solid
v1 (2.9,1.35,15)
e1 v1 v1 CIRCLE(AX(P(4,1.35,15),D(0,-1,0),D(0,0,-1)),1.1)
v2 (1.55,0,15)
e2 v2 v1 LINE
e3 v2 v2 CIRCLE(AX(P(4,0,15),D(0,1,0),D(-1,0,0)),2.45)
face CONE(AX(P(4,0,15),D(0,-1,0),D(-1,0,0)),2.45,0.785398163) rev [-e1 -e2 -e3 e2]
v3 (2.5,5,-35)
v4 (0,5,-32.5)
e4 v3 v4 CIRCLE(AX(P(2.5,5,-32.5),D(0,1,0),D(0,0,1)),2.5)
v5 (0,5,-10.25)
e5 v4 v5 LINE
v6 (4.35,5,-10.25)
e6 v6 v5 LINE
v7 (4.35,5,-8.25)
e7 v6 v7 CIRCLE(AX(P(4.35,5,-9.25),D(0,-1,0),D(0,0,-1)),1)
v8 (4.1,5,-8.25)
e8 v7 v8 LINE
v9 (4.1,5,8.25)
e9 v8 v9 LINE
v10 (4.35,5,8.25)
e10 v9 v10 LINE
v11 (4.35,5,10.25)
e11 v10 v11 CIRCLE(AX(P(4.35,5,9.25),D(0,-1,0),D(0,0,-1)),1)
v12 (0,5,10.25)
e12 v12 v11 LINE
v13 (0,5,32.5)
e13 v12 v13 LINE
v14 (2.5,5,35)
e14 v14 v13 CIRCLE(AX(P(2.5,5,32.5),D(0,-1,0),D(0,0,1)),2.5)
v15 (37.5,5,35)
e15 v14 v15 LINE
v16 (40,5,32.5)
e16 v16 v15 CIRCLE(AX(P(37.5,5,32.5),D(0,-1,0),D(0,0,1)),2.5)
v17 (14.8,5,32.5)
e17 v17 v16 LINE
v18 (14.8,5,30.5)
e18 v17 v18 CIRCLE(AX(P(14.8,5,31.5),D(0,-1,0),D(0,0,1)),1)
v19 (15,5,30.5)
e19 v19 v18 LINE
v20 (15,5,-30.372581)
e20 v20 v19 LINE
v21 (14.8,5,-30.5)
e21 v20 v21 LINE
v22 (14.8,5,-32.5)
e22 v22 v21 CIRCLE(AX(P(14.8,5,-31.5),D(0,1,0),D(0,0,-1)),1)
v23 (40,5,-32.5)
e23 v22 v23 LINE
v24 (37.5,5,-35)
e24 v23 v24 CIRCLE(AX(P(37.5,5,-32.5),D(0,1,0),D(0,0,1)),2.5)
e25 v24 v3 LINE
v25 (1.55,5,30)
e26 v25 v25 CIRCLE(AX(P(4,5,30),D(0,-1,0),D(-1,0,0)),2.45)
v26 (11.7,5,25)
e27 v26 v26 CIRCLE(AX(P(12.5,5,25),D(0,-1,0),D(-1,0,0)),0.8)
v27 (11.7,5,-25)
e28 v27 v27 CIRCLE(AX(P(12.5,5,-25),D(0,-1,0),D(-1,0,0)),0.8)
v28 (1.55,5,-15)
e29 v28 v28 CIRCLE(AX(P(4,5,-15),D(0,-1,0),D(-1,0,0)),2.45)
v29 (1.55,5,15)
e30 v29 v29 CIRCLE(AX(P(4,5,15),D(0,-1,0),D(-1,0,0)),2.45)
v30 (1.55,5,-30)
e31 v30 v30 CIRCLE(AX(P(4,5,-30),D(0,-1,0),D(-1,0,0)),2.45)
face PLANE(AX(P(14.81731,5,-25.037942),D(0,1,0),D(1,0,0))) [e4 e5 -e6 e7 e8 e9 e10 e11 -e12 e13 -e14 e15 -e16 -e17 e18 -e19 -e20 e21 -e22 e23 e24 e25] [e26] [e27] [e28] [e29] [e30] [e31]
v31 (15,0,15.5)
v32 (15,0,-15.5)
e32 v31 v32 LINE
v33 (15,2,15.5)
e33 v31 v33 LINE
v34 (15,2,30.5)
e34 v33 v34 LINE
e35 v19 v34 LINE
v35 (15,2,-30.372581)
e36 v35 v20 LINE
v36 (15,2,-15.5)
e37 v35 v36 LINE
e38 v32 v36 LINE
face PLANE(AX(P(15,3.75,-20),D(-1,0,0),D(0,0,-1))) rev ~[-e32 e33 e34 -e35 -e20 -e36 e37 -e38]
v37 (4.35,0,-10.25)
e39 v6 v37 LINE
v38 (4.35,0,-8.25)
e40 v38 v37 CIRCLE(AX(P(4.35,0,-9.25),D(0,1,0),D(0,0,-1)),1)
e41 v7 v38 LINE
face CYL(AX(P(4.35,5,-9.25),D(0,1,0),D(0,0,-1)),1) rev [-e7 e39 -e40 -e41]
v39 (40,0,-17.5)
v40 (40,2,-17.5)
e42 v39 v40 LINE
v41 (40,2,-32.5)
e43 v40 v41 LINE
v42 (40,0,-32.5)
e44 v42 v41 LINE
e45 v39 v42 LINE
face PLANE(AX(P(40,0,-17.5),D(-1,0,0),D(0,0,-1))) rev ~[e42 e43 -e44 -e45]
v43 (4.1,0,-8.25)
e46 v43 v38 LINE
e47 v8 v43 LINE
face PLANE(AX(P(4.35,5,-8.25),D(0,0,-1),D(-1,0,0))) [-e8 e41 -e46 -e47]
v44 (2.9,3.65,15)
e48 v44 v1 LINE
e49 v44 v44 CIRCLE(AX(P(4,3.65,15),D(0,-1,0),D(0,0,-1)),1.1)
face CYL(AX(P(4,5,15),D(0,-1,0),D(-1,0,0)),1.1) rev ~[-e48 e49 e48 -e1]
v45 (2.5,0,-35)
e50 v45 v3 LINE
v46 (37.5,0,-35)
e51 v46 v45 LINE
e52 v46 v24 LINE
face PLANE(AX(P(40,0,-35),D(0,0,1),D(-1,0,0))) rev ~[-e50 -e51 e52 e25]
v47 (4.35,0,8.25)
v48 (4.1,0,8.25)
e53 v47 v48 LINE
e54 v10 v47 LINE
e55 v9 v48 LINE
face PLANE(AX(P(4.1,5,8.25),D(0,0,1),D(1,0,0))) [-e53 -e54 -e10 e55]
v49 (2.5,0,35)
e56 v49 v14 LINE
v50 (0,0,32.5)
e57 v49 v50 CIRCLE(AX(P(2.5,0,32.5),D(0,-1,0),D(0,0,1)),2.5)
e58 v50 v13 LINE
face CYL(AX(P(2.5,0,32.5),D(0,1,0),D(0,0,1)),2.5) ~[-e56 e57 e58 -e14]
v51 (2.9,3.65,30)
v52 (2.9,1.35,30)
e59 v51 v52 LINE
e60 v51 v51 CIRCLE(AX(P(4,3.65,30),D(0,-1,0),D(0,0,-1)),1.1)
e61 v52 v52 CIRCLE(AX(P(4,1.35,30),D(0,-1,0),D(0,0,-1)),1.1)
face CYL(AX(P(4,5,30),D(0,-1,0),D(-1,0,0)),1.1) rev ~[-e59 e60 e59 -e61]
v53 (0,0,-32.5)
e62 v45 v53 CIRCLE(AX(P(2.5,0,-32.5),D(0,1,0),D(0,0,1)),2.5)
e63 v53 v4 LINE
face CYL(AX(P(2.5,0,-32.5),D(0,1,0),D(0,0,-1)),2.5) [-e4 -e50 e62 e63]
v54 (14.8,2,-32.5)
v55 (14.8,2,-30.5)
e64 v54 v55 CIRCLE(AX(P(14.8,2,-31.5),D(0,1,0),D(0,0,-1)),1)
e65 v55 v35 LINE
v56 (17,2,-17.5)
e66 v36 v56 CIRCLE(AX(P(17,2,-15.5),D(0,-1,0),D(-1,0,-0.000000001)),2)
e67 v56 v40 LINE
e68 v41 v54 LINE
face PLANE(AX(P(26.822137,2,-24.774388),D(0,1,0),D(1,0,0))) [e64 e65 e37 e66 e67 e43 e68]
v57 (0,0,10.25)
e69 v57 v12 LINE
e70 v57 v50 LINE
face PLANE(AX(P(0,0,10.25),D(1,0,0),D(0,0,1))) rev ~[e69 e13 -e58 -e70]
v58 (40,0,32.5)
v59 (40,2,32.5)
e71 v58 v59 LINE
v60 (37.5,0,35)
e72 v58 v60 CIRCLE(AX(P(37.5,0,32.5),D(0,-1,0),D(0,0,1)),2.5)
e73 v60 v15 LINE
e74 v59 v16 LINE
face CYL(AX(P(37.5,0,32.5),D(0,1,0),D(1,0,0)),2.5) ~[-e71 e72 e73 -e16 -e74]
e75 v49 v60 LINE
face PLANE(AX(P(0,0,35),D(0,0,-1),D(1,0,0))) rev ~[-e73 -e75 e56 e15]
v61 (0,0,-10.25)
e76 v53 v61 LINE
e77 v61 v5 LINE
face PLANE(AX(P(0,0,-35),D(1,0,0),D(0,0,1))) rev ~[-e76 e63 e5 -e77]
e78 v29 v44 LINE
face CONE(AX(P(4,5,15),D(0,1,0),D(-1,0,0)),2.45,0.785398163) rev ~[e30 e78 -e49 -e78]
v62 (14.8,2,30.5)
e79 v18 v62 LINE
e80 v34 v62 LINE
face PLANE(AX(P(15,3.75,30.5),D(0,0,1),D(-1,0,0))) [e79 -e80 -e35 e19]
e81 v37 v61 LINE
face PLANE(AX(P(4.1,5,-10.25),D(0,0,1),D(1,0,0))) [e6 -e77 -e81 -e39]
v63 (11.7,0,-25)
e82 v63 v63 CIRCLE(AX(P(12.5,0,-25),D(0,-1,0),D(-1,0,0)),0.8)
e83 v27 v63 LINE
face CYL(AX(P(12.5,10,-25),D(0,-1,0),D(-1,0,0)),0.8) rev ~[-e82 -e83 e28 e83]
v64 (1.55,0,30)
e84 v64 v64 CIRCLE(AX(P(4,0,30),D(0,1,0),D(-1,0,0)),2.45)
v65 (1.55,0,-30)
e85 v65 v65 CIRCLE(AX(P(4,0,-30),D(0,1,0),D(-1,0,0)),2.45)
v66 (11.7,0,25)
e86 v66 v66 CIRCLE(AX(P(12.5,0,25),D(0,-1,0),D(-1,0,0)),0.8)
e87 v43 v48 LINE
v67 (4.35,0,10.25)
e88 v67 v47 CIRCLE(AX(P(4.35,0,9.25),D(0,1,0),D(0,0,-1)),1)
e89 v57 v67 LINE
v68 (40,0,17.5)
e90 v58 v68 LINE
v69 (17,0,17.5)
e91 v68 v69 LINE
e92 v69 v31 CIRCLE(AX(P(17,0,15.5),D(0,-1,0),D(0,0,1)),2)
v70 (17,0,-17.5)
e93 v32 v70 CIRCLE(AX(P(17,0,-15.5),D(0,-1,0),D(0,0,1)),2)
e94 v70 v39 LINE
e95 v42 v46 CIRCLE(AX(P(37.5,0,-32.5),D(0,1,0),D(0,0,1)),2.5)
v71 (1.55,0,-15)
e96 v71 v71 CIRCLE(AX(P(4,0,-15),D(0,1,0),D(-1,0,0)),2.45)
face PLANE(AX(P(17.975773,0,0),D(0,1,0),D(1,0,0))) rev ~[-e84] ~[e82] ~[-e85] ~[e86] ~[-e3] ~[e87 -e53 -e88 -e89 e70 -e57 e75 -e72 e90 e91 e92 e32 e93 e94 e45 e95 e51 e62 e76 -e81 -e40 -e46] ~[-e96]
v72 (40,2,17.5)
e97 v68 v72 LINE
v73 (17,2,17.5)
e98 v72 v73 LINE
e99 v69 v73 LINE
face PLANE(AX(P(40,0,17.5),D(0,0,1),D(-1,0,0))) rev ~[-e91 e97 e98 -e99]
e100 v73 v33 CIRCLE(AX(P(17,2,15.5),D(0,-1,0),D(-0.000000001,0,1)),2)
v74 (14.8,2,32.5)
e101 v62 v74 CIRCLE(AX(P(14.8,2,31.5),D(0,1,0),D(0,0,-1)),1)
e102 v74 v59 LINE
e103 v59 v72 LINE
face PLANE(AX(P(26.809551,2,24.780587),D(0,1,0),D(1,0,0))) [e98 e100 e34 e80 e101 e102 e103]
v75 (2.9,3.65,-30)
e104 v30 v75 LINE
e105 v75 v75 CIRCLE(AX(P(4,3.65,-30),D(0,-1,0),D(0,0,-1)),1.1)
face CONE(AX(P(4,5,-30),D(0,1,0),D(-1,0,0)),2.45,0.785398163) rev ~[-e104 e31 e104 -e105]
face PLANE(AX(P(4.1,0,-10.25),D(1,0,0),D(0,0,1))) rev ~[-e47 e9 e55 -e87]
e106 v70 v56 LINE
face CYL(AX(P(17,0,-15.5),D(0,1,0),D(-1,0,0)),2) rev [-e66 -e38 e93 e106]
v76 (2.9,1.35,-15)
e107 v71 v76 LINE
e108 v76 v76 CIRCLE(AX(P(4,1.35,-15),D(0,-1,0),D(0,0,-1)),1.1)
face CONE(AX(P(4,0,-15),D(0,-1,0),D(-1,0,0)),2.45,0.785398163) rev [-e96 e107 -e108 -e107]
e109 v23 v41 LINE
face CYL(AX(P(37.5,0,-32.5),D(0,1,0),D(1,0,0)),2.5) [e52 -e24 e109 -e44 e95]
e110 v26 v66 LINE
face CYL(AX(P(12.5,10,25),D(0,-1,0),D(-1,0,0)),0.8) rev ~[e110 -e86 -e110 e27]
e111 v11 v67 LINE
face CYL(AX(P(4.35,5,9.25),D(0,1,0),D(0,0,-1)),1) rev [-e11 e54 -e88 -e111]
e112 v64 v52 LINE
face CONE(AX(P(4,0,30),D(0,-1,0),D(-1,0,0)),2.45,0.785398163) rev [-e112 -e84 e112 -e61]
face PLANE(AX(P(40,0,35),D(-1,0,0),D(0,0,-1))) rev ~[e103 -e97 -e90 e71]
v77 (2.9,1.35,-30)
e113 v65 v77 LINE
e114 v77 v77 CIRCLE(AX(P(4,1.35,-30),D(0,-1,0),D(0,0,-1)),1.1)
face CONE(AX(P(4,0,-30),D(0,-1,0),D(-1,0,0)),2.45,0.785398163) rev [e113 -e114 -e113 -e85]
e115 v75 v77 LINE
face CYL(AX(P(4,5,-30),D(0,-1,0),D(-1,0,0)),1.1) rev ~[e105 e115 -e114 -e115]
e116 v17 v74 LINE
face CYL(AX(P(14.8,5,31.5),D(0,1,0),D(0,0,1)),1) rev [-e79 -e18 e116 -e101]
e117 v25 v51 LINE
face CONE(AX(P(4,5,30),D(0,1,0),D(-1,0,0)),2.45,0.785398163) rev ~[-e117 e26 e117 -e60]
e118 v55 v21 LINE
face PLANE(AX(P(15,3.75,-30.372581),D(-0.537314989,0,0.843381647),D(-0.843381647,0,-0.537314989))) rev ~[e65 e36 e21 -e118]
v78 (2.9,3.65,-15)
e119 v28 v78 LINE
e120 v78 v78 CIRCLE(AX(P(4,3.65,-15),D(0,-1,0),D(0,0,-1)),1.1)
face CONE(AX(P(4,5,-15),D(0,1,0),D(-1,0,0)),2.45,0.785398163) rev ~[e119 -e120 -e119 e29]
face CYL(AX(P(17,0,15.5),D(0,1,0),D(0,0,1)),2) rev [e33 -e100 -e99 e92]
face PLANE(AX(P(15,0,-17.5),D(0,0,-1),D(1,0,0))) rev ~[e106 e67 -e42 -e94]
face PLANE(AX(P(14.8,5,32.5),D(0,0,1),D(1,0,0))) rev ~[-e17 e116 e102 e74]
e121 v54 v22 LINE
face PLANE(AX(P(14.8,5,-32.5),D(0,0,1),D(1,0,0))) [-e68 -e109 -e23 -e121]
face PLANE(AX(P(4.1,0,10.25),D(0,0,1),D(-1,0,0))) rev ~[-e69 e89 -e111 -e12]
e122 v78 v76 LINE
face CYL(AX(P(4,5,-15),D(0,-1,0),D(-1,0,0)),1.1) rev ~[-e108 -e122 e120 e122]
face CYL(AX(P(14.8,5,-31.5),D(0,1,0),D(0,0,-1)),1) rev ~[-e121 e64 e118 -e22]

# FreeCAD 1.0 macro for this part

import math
import FreeCAD as App
import Part
import Sketcher
Q = App.Units.Quantity


def edges_at(feature, points):
    """Names of the edges that pass closest to the given points."""
    edges = feature.Shape.Edges
    near = lambda p: min(range(len(edges)), key=lambda i: edges[i].distToShape(Part.Vertex(*p))[0])
    return sorted({f"Edge{near(p) + 1}" for p in points})

doc = App.newDocument("Part")
body = doc.addObject("PartDesign::Body", "Body")

sketch1 = doc.addObject("Sketcher::SketchObject", "Sketch")
body.addObject(sketch1)
sketch1.AttachmentSupport = (doc.XZ_Plane, [""])
sketch1.MapMode = "FlatFace"
sketch1.addGeometry([
    Part.LineSegment(App.Vector(0, -35, 0), App.Vector(0, -10.2, 0)),
    Part.LineSegment(App.Vector(0, -10.2, 0), App.Vector(4.1, -10.2, 0)),
    Part.LineSegment(App.Vector(4.1, -10.2, 0), App.Vector(4.1, 10.2, 0)),
    Part.LineSegment(App.Vector(4.1, 10.2, 0), App.Vector(0, 10.2, 0)),
    Part.LineSegment(App.Vector(0, 10.2, 0), App.Vector(0, 35, 0)),
    Part.LineSegment(App.Vector(0, 35, 0), App.Vector(40, 35, 0)),
    Part.LineSegment(App.Vector(40, 35, 0), App.Vector(40, 17.5, 0)),
    Part.LineSegment(App.Vector(40, 17.5, 0), App.Vector(15, 17.5, 0)),
    Part.LineSegment(App.Vector(15, 17.5, 0), App.Vector(15, -17.5, 0)),
    Part.LineSegment(App.Vector(15, -17.5, 0), App.Vector(40, -17.5, 0)),
    Part.LineSegment(App.Vector(40, -17.5, 0), App.Vector(40, -35, 0)),
    Part.LineSegment(App.Vector(40, -35, 0), App.Vector(0, -35, 0)),
], False)
sketch1.addConstraint([
    Sketcher.Constraint("Coincident", 0, 2, 1, 1),
    Sketcher.Constraint("Coincident", 1, 2, 2, 1),
    Sketcher.Constraint("Coincident", 2, 2, 3, 1),
    Sketcher.Constraint("Coincident", 3, 2, 4, 1),
    Sketcher.Constraint("Coincident", 4, 2, 5, 1),
    Sketcher.Constraint("Coincident", 5, 2, 6, 1),
    Sketcher.Constraint("Coincident", 6, 2, 7, 1),
    Sketcher.Constraint("Coincident", 7, 2, 8, 1),
    Sketcher.Constraint("Coincident", 8, 2, 9, 1),
    Sketcher.Constraint("Coincident", 9, 2, 10, 1),
    Sketcher.Constraint("Coincident", 10, 2, 11, 1),
    Sketcher.Constraint("Coincident", 11, 2, 0, 1),
    Sketcher.Constraint("Vertical", 0),
    Sketcher.Constraint("Horizontal", 1),
    Sketcher.Constraint("Vertical", 2),
    Sketcher.Constraint("Horizontal", 3),
    Sketcher.Constraint("Vertical", 4),
    Sketcher.Constraint("Horizontal", 5),
    Sketcher.Constraint("Vertical", 6),
    Sketcher.Constraint("Horizontal", 7),
    Sketcher.Constraint("Vertical", 8),
    Sketcher.Constraint("Horizontal", 9),
    Sketcher.Constraint("Vertical", 10),
    Sketcher.Constraint("Horizontal", 11),
    Sketcher.Constraint("Symmetric", 0, 2, 3, 2, -1, 1),
    Sketcher.Constraint("Symmetric", 6, 2, 9, 2, -1),
    Sketcher.Constraint("Symmetric", 4, 2, 11, 2, -1),
    Sketcher.Constraint("DistanceX", 5, 1, 5, 2, Q("40 mm")),
    Sketcher.Constraint("DistanceX", 7, 2, 7, 1, Q("25 mm")),
    Sketcher.Constraint("DistanceY", 8, 2, 8, 1, Q("35 mm")),
    Sketcher.Constraint("DistanceX", 1, 1, 1, 2, Q("4.1 mm")),
    Sketcher.Constraint("DistanceY", 2, 1, 2, 2, Q("20.5 mm")),
    Sketcher.Constraint("DistanceY", 6, 2, 6, 1, Q("17.5 mm")),
])
pad1 = doc.addObject("PartDesign::Pad", "Pad")
body.addObject(pad1)
pad1.Profile = sketch1
pad1.Length = 5
pad1.Reversed = True
doc.recompute()

fillet = doc.addObject("PartDesign::Fillet", "Fillet")
body.addObject(fillet)
fillet.Base = (pad1, edges_at(pad1, [(15, 2.5, -17.5), (15, 2.5, 17.5)]))
fillet.Radius = 2
doc.recompute()

fillet2 = doc.addObject("PartDesign::Fillet", "Fillet001")
body.addObject(fillet2)
fillet2.Base = (fillet, edges_at(fillet, [
    (0, 2.5, -35),
    (40, 2.5, -35),
    (40, 2.5, 35),
    (0, 2.5, 35),
]))
fillet2.Radius = 2.5

sketch2 = doc.addObject("Sketcher::SketchObject", "Sketch001")
body.addObject(sketch2)
sketch2.AttachmentSupport = (doc.XZ_Plane, [""])
sketch2.MapMode = "FlatFace"
sketch2.AttachmentOffset = App.Placement(App.Vector(0, 0, -5), App.Rotation())
sketch2.addGeometry([
    Part.LineSegment(App.Vector(4.35, -10.25, 0), App.Vector(4.1, -10.25, 0)),
    Part.LineSegment(App.Vector(4.1, -10.25, 0), App.Vector(4.1, -8.25, 0)),
    Part.LineSegment(App.Vector(4.1, -8.25, 0), App.Vector(4.35, -8.25, 0)),
    Part.ArcOfCircle(Part.Circle(App.Vector(4.35, -9.25, 0), App.Vector(0, 0, 1), 1), math.radians(-90), math.radians(90)),
], False)
sketch2.addConstraint([
    Sketcher.Constraint("Coincident", 0, 2, 1, 1),
    Sketcher.Constraint("Coincident", 1, 2, 2, 1),
    Sketcher.Constraint("Tangent", 2, 2, 3, 2),
    Sketcher.Constraint("Tangent", 3, 1, 0, 1),
    Sketcher.Constraint("Horizontal", 0),
    Sketcher.Constraint("Vertical", 1),
    Sketcher.Constraint("Horizontal", 2),
    Sketcher.Constraint("Radius", 3, Q("1 mm")),
    Sketcher.Constraint("DistanceX", 0, 2, 0, 1, Q("0.25 mm")),
    Sketcher.Constraint("DistanceX", -1, 1, 0, 2, Q("4.1 mm")),
    Sketcher.Constraint("DistanceY", 3, 3, -1, 1, Q("9.25 mm")),
])
pocket1 = doc.addObject("PartDesign::Pocket", "Pocket")
body.addObject(pocket1)
pocket1.Profile = sketch2
pocket1.Type = "UpToFirst"
pocket1.Reversed = True

sketch3 = doc.addObject("Sketcher::SketchObject", "Sketch002")
body.addObject(sketch3)
sketch3.AttachmentSupport = (doc.XZ_Plane, [""])
sketch3.MapMode = "FlatFace"
sketch3.AttachmentOffset = App.Placement(App.Vector(0, 0, -5), App.Rotation())
sketch3.addGeometry([
    Part.LineSegment(App.Vector(4.1, 8.25, 0), App.Vector(4.1, 10.25, 0)),
    Part.LineSegment(App.Vector(4.1, 10.25, 0), App.Vector(4.35, 10.25, 0)),
    Part.ArcOfCircle(Part.Circle(App.Vector(4.35, 9.25, 0), App.Vector(0, 0, 1), 1), math.radians(-90), math.radians(90)),
    Part.LineSegment(App.Vector(4.35, 8.25, 0), App.Vector(4.1, 8.25, 0)),
], False)
sketch3.addConstraint([
    Sketcher.Constraint("Coincident", 0, 2, 1, 1),
    Sketcher.Constraint("Tangent", 1, 2, 2, 2),
    Sketcher.Constraint("Tangent", 2, 1, 3, 1),
    Sketcher.Constraint("Coincident", 3, 2, 0, 1),
    Sketcher.Constraint("Vertical", 0),
    Sketcher.Constraint("Horizontal", 1),
    Sketcher.Constraint("Horizontal", 3),
    Sketcher.Constraint("Radius", 2, Q("1 mm")),
    Sketcher.Constraint("DistanceX", 1, 1, 1, 2, Q("0.25 mm")),
    Sketcher.Constraint("DistanceX", -1, 1, 0, 2, Q("4.1 mm")),
    Sketcher.Constraint("DistanceY", -1, 1, 2, 3, Q("9.25 mm")),
])
pocket2 = doc.addObject("PartDesign::Pocket", "Pocket001")
body.addObject(pocket2)
pocket2.Profile = sketch3
pocket2.Type = "UpToFirst"
pocket2.Reversed = True

sketch4 = doc.addObject("Sketcher::SketchObject", "Sketch003")
body.addObject(sketch4)
sketch4.AttachmentSupport = (doc.XZ_Plane, [""])
sketch4.MapMode = "FlatFace"
sketch4.AttachmentOffset = App.Placement(App.Vector(0, 0, -5), App.Rotation())
sketch4.addGeometry([
    Part.Circle(App.Vector(4, -30, 0), App.Vector(0, 0, 1), 1.1),
    Part.Circle(App.Vector(4, -15, 0), App.Vector(0, 0, 1), 1.1),
    Part.Circle(App.Vector(4, 15, 0), App.Vector(0, 0, 1), 1.1),
    Part.Circle(App.Vector(4, 30, 0), App.Vector(0, 0, 1), 1.1),
], False)
sketch4.addConstraint([
    Sketcher.Constraint("Equal", 0, 1),
    Sketcher.Constraint("Equal", 1, 2),
    Sketcher.Constraint("Equal", 2, 3),
    Sketcher.Constraint("Symmetric", 1, 3, 2, 3, -1),
    Sketcher.Constraint("Symmetric", 0, 3, 3, 3, -1),
    Sketcher.Constraint("Vertical", 0, 3, 1, 3),
    Sketcher.Constraint("Diameter", 0, Q("2.2 mm")),
    Sketcher.Constraint("DistanceX", -1, 1, 0, 3, Q("4 mm")),
    Sketcher.Constraint("DistanceY", 0, 3, -1, 1, Q("30 mm")),
    Sketcher.Constraint("DistanceY", 1, 3, -1, 1, Q("15 mm")),
])
doc.recompute()
hole = doc.addObject("PartDesign::Hole", "Hole")
body.addObject(hole)
hole.Profile = sketch4
hole.ThreadType = "None"
hole.Diameter = 2.2
hole.DepthType = "Dimension"
hole.Depth = 5
hole.DrillPoint = "Flat"
hole.HoleCutType = "Countersink"
hole.HoleCutDiameter = 4.9
hole.HoleCutCountersinkAngle = 90
hole.Reversed = True

sketch5 = doc.addObject("Sketcher::SketchObject", "Sketch004")
body.addObject(sketch5)
sketch5.AttachmentSupport = (doc.XZ_Plane, [""])
sketch5.MapMode = "FlatFace"
sketch5.AttachmentOffset = App.Placement(App.Vector(0, 0, -5), App.Rotation())
sketch5.addGeometry([
    Part.Circle(App.Vector(12.5, 25, 0), App.Vector(0, 0, 1), 0.8),
    Part.Circle(App.Vector(12.5, -25, 0), App.Vector(0, 0, 1), 0.8),
], False)
sketch5.addConstraint([
    Sketcher.Constraint("Equal", 0, 1),
    Sketcher.Constraint("Symmetric", 0, 3, 1, 3, -1),
    Sketcher.Constraint("Diameter", 0, Q("1.6 mm")),
    Sketcher.Constraint("DistanceY", -1, 1, 0, 3, Q("25 mm")),
    Sketcher.Constraint("DistanceX", -1, 1, 0, 3, Q("12.5 mm")),
])
doc.recompute()
hole2 = doc.addObject("PartDesign::Hole", "Hole001")
body.addObject(hole2)
hole2.Profile = sketch5
hole2.ThreadType = "None"
hole2.Diameter = 1.6
hole2.DepthType = "Dimension"
hole2.Depth = 5
hole2.DrillPoint = "Flat"
hole2.Reversed = True

sketch6 = doc.addObject("Sketcher::SketchObject", "Sketch005")
body.addObject(sketch6)
sketch6.AttachmentSupport = (doc.XZ_Plane, [""])
sketch6.MapMode = "FlatFace"
sketch6.AttachmentOffset = App.Placement(App.Vector(0, 0, -5), App.Rotation())
sketch6.addGeometry([
    Part.LineSegment(App.Vector(15, -32, 0), App.Vector(15, -20, 0)),
    Part.LineSegment(App.Vector(15, -20, 0), App.Vector(40, -20, 0)),
    Part.LineSegment(App.Vector(40, -20, 0), App.Vector(40, -32, 0)),
    Part.LineSegment(App.Vector(40, -32, 0), App.Vector(15, -32, 0)),
    Part.LineSegment(App.Vector(15, 20, 0), App.Vector(15, 32, 0)),
    Part.LineSegment(App.Vector(15, 32, 0), App.Vector(40, 32, 0)),
    Part.LineSegment(App.Vector(40, 32, 0), App.Vector(40, 20, 0)),
    Part.LineSegment(App.Vector(40, 20, 0), App.Vector(15, 20, 0)),
], False)
sketch6.addConstraint([
    Sketcher.Constraint("Coincident", 0, 2, 1, 1),
    Sketcher.Constraint("Coincident", 1, 2, 2, 1),
    Sketcher.Constraint("Coincident", 2, 2, 3, 1),
    Sketcher.Constraint("Coincident", 3, 2, 0, 1),
    Sketcher.Constraint("Coincident", 4, 2, 5, 1),
    Sketcher.Constraint("Coincident", 5, 2, 6, 1),
    Sketcher.Constraint("Coincident", 6, 2, 7, 1),
    Sketcher.Constraint("Coincident", 7, 2, 4, 1),
    Sketcher.Constraint("Vertical", 0),
    Sketcher.Constraint("Horizontal", 1),
    Sketcher.Constraint("Vertical", 2),
    Sketcher.Constraint("Horizontal", 3),
    Sketcher.Constraint("Vertical", 4),
    Sketcher.Constraint("Horizontal", 5),
    Sketcher.Constraint("Vertical", 6),
    Sketcher.Constraint("Horizontal", 7),
    Sketcher.Constraint("Symmetric", 3, 2, 4, 2, -1),
    Sketcher.Constraint("Symmetric", 1, 2, 6, 2, -1),
    Sketcher.Constraint("DistanceX", 1, 1, 1, 2, Q("25.2 mm")),
    Sketcher.Constraint("DistanceY", 0, 1, 0, 2, Q("12.5 mm")),
    Sketcher.Constraint("DistanceY", 0, 2, -1, 1, Q("20 mm")),
    Sketcher.Constraint("DistanceX", -1, 1, 1, 2, Q("40 mm")),
])
pocket3 = doc.addObject("PartDesign::Pocket", "Pocket002")
body.addObject(pocket3)
pocket3.Profile = sketch6
pocket3.Length = 1.25
pocket3.Reversed = True

sketch7 = doc.addObject("Sketcher::SketchObject", "Sketch006")
body.addObject(sketch7)
sketch7.AttachmentSupport = (doc.XZ_Plane, [""])
sketch7.MapMode = "FlatFace"
sketch7.AttachmentOffset = App.Placement(App.Vector(0, 0, -5), App.Rotation())
sketch7.addGeometry([
    Part.LineSegment(App.Vector(14.8, -20, 0), App.Vector(14.8, -22, 0)),
    Part.ArcOfCircle(Part.Circle(App.Vector(14.8, -21, 0), App.Vector(0, 0, 1), 1), math.radians(90), math.radians(270)),
    Part.LineSegment(App.Vector(14.8, -30.5, 0), App.Vector(14.8, -32.5, 0)),
    Part.ArcOfCircle(Part.Circle(App.Vector(14.8, -31.5, 0), App.Vector(0, 0, 1), 1), math.radians(90), math.radians(270)),
], False)
sketch7.addConstraint([
    Sketcher.Constraint("Coincident", 0, 1, 1, 1),
    Sketcher.Constraint("Coincident", 1, 2, 0, 2),
    Sketcher.Constraint("Coincident", 2, 1, 3, 1),
    Sketcher.Constraint("Coincident", 3, 2, 2, 2),
    Sketcher.Constraint("Vertical", 0),
    Sketcher.Constraint("Vertical", 2),
    Sketcher.Constraint("Equal", 1, 3),
    Sketcher.Constraint("Vertical", 1, 3, 3, 3),
    Sketcher.Constraint("Vertical", 3, 3, 0, 1),
    Sketcher.Constraint("Vertical", 1, 2, 2, 1),
    Sketcher.Constraint("Radius", 1, Q("1 mm")),
    Sketcher.Constraint("DistanceY", 1, 3, -1, 1, Q("21 mm")),
    Sketcher.Constraint("DistanceX", -1, 1, 1, 3, Q("14.8 mm")),
    Sketcher.Constraint("DistanceY", 3, 3, -1, 1, Q("31.5 mm")),
])
pocket4 = doc.addObject("PartDesign::Pocket", "Pocket003")
body.addObject(pocket4)
pocket4.Profile = sketch7
pocket4.Length = 1.25
pocket4.Reversed = True
doc.recompute()

datumplane = doc.addObject("PartDesign::Plane", "DatumPlane")
body.addObject(datumplane)
datumplane.AttachmentSupport = (doc.XZ_Plane, [""])
datumplane.MapMode = "FlatFace"
datumplane.AttachmentOffset = App.Placement(App.Vector(0, 0, -2.5), App.Rotation())
mirrored = doc.addObject("PartDesign::Mirrored", "Mirrored")
body.addObject(mirrored)
mirrored.Originals = [hole]
mirrored.MirrorPlane = (datumplane, [""])
body.Tip = mirrored
doc.recompute()

mirrored2 = doc.addObject("PartDesign::Mirrored", "Mirrored001")
body.addObject(mirrored2)
mirrored2.Originals = [pocket4]
mirrored2.MirrorPlane = (doc.XY_Plane, [""])
body.Tip = mirrored2

sketch8 = doc.addObject("Sketcher::SketchObject", "Sketch007")
body.addObject(sketch8)
sketch8.AttachmentSupport = (doc.XZ_Plane, [""])
sketch8.MapMode = "FlatFace"
sketch8.AttachmentOffset = App.Placement(App.Vector(0, 0, -5), App.Rotation())
sketch8.addGeometry([
    Part.LineSegment(App.Vector(15, -20, 0), App.Vector(15, -15.5, 0)),
    Part.LineSegment(App.Vector(15, -15.5, 0), App.Vector(40, -15.5, 0)),
    Part.LineSegment(App.Vector(40, -15.5, 0), App.Vector(40, -20, 0)),
    Part.LineSegment(App.Vector(40, -20, 0), App.Vector(15, -20, 0)),
    Part.LineSegment(App.Vector(15, 15.5, 0), App.Vector(15, 20, 0)),
    Part.LineSegment(App.Vector(15, 20, 0), App.Vector(40, 20, 0)),
    Part.LineSegment(App.Vector(40, 20, 0), App.Vector(40, 15.5, 0)),
    Part.LineSegment(App.Vector(40, 15.5, 0), App.Vector(15, 15.5, 0)),
], False)
sketch8.addConstraint([
    Sketcher.Constraint("Coincident", 0, 2, 1, 1),
    Sketcher.Constraint("Coincident", 1, 2, 2, 1),
    Sketcher.Constraint("Coincident", 2, 2, 3, 1),
    Sketcher.Constraint("Coincident", 3, 2, 0, 1),
    Sketcher.Constraint("Coincident", 4, 2, 5, 1),
    Sketcher.Constraint("Coincident", 5, 2, 6, 1),
    Sketcher.Constraint("Coincident", 6, 2, 7, 1),
    Sketcher.Constraint("Coincident", 7, 2, 4, 1),
    Sketcher.Constraint("Vertical", 0),
    Sketcher.Constraint("Horizontal", 1),
    Sketcher.Constraint("Vertical", 2),
    Sketcher.Constraint("Horizontal", 3),
    Sketcher.Constraint("Vertical", 4),
    Sketcher.Constraint("Horizontal", 5),
    Sketcher.Constraint("Vertical", 6),
    Sketcher.Constraint("Horizontal", 7),
    Sketcher.Constraint("Symmetric", 3, 2, 4, 2, -1),
    Sketcher.Constraint("Symmetric", 1, 2, 6, 2, -1),
    Sketcher.Constraint("DistanceX", 1, 1, 1, 2, Q("25 mm")),
    Sketcher.Constraint("DistanceY", 0, 1, 0, 2, Q("4.5 mm")),
    Sketcher.Constraint("DistanceX", -1, 1, 0, 2, Q("15 mm")),
    Sketcher.Constraint("DistanceY", 2, 2, -1, 1, Q("20 mm")),
])
pocket5 = doc.addObject("PartDesign::Pocket", "Pocket004")
body.addObject(pocket5)
pocket5.Profile = sketch8
pocket5.Length = 1.25
pocket5.Reversed = True

sketch9 = doc.addObject("Sketcher::SketchObject", "Sketch008")
body.addObject(sketch9)
sketch9.AttachmentSupport = (doc.XZ_Plane, [""])
sketch9.MapMode = "FlatFace"
sketch9.AttachmentOffset = App.Placement(App.Vector(0, 0, -3.75), App.Rotation())
sketch9.addGeometry([
    Part.LineSegment(App.Vector(14.8, -20, 0), App.Vector(15, -20, 0)),
    Part.LineSegment(App.Vector(15, -20, 0), App.Vector(15, -30.37, 0)),
    Part.LineSegment(App.Vector(15, -30.37, 0), App.Vector(14.8, -30.5, 0)),
    Part.LineSegment(App.Vector(14.8, -30.5, 0), App.Vector(14.8, -22, 0)),
    Part.ArcOfCircle(Part.Circle(App.Vector(14.8, -21, 0), App.Vector(0, 0, 1), 1), math.radians(90), math.radians(270)),
    Part.LineSegment(App.Vector(15, 20, 0), App.Vector(14.8, 20, 0)),
    Part.ArcOfCircle(Part.Circle(App.Vector(14.8, 21, 0), App.Vector(0, 0, 1), 1), math.radians(90), math.radians(270)),
    Part.LineSegment(App.Vector(14.8, 22, 0), App.Vector(14.8, 30.5, 0)),
    Part.LineSegment(App.Vector(14.8, 30.5, 0), App.Vector(15, 30.5, 0)),
    Part.LineSegment(App.Vector(15, 30.5, 0), App.Vector(15, 20, 0)),
], False)
sketch9.addConstraint([
    Sketcher.Constraint("Coincident", 0, 2, 1, 1),
    Sketcher.Constraint("Coincident", 1, 2, 2, 1),
    Sketcher.Constraint("Coincident", 2, 2, 3, 1),
    Sketcher.Constraint("Coincident", 3, 2, 4, 2),
    Sketcher.Constraint("Tangent", 4, 1, 0, 1),
    Sketcher.Constraint("Tangent", 5, 2, 6, 2),
    Sketcher.Constraint("Coincident", 6, 1, 7, 1),
    Sketcher.Constraint("Coincident", 7, 2, 8, 1),
    Sketcher.Constraint("Coincident", 8, 2, 9, 1),
    Sketcher.Constraint("Coincident", 9, 2, 5, 1),
    Sketcher.Constraint("Horizontal", 0),
    Sketcher.Constraint("Vertical", 1),
    Sketcher.Constraint("Vertical", 3),
    Sketcher.Constraint("Horizontal", 5),
    Sketcher.Constraint("Vertical", 7),
    Sketcher.Constraint("Horizontal", 8),
    Sketcher.Constraint("Vertical", 9),
    Sketcher.Constraint("Equal", 4, 6),
    Sketcher.Constraint("Symmetric", 4, 3, 6, 3, -1),
    Sketcher.Constraint("Symmetric", 2, 2, 7, 2, -1),
    Sketcher.Constraint("Vertical", 6, 3, 2, 2),
    Sketcher.Constraint("Vertical", 1, 2, 8, 2),
    Sketcher.Constraint("Radius", 4, Q("1 mm")),
    Sketcher.Constraint("DistanceX", 0, 1, 0, 2, Q("0.2 mm")),
    Sketcher.Constraint("DistanceY", 3, 1, 3, 2, Q("8.5 mm")),
    Sketcher.Constraint("DistanceY", 4, 3, -1, 1, Q("21 mm")),
    Sketcher.Constraint("DistanceX", -1, 1, 0, 2, Q("15 mm")),
    Sketcher.Constraint("DistanceY", 1, 2, 1, 1, Q("10.372581 mm")),
])
pad2 = doc.addObject("PartDesign::Pad", "Pad001")
body.addObject(pad2)
pad2.Profile = sketch9
pad2.Length = 1.25
pad2.Reversed = True

sketch10 = doc.addObject("Sketcher::SketchObject", "Sketch009")
body.addObject(sketch10)
sketch10.AttachmentSupport = (doc.XZ_Plane, [""])
sketch10.MapMode = "FlatFace"
sketch10.AttachmentOffset = App.Placement(App.Vector(0, 0, -3.75), App.Rotation())
sketch10.addGeometry([
    Part.LineSegment(App.Vector(14.8, -30.5, 0), App.Vector(15, -30.37, 0)),
    Part.LineSegment(App.Vector(15, -30.37, 0), App.Vector(15, -15.5, 0)),
    Part.ArcOfCircle(Part.Circle(App.Vector(17, -15.5, 0), App.Vector(0, 0, 1), 2), math.radians(-180), math.radians(-90)),
    Part.LineSegment(App.Vector(17, -17.5, 0), App.Vector(40, -17.5, 0)),
    Part.LineSegment(App.Vector(40, -17.5, 0), App.Vector(40, -32.5, 0)),
    Part.LineSegment(App.Vector(40, -32.5, 0), App.Vector(14.8, -32.5, 0)),
    Part.ArcOfCircle(Part.Circle(App.Vector(14.8, -31.5, 0), App.Vector(0, 0, 1), 1), math.radians(90), math.radians(270)),
    Part.LineSegment(App.Vector(15, 15.5, 0), App.Vector(15, 30.5, 0)),
    Part.LineSegment(App.Vector(15, 30.5, 0), App.Vector(14.8, 30.5, 0)),
    Part.ArcOfCircle(Part.Circle(App.Vector(14.8, 31.5, 0), App.Vector(0, 0, 1), 1), math.radians(90), math.radians(270)),
    Part.LineSegment(App.Vector(14.8, 32.5, 0), App.Vector(40, 32.5, 0)),
    Part.LineSegment(App.Vector(40, 32.5, 0), App.Vector(40, 17.5, 0)),
    Part.LineSegment(App.Vector(40, 17.5, 0), App.Vector(17, 17.5, 0)),
    Part.ArcOfCircle(Part.Circle(App.Vector(17, 15.5, 0), App.Vector(0, 0, 1), 2), math.radians(90), math.radians(180)),
], False)
sketch10.addConstraint([
    Sketcher.Constraint("Coincident", 0, 2, 1, 1),
    Sketcher.Constraint("Tangent", 1, 2, 2, 1),
    Sketcher.Constraint("Tangent", 2, 2, 3, 1),
    Sketcher.Constraint("Coincident", 3, 2, 4, 1),
    Sketcher.Constraint("Coincident", 4, 2, 5, 1),
    Sketcher.Constraint("Tangent", 5, 2, 6, 2),
    Sketcher.Constraint("Coincident", 6, 1, 0, 1),
    Sketcher.Constraint("Coincident", 7, 2, 8, 1),
    Sketcher.Constraint("Tangent", 8, 2, 9, 2),
    Sketcher.Constraint("Tangent", 9, 1, 10, 1),
    Sketcher.Constraint("Coincident", 10, 2, 11, 1),
    Sketcher.Constraint("Coincident", 11, 2, 12, 1),
    Sketcher.Constraint("Tangent", 12, 2, 13, 1),
    Sketcher.Constraint("Tangent", 13, 2, 7, 1),
    Sketcher.Constraint("Vertical", 1),
    Sketcher.Constraint("Horizontal", 3),
    Sketcher.Constraint("Vertical", 4),
    Sketcher.Constraint("Horizontal", 5),
    Sketcher.Constraint("Vertical", 7),
    Sketcher.Constraint("Horizontal", 8),
    Sketcher.Constraint("Horizontal", 10),
    Sketcher.Constraint("Vertical", 11),
    Sketcher.Constraint("Horizontal", 12),
    Sketcher.Constraint("Equal", 6, 9),
    Sketcher.Constraint("Equal", 2, 13),
    Sketcher.Constraint("Symmetric", 6, 3, 9, 3, -1),
    Sketcher.Constraint("Symmetric", 2, 3, 13, 3, -1),
    Sketcher.Constraint("Vertical", 5, 2, 6, 1),
    Sketcher.Constraint("Vertical", 4, 2, 10, 2),
    Sketcher.Constraint("Equal", 4, 7),
    Sketcher.Constraint("Radius", 2, Q("2 mm")),
    Sketcher.Constraint("DistanceX", 3, 1, 3, 2, Q("23 mm")),
    Sketcher.Constraint("DistanceY", 4, 2, 4, 1, Q("15 mm")),
    Sketcher.Constraint("DistanceX", 5, 2, 5, 1, Q("25.2 mm")),
    Sketcher.Constraint("DistanceX", -1, 1, 2, 3, Q("17 mm")),
    Sketcher.Constraint("DistanceY", 2, 3, 9, 3, Q("47 mm")),
    Sketcher.Constraint("DistanceY", 1, 1, 1, 2, Q("14.872581 mm")),
])
pocket6 = doc.addObject("PartDesign::Pocket", "Pocket005")
body.addObject(pocket6)
pocket6.Profile = sketch10
pocket6.Length = 1.75
pocket6.Reversed = True

doc.recompute()
